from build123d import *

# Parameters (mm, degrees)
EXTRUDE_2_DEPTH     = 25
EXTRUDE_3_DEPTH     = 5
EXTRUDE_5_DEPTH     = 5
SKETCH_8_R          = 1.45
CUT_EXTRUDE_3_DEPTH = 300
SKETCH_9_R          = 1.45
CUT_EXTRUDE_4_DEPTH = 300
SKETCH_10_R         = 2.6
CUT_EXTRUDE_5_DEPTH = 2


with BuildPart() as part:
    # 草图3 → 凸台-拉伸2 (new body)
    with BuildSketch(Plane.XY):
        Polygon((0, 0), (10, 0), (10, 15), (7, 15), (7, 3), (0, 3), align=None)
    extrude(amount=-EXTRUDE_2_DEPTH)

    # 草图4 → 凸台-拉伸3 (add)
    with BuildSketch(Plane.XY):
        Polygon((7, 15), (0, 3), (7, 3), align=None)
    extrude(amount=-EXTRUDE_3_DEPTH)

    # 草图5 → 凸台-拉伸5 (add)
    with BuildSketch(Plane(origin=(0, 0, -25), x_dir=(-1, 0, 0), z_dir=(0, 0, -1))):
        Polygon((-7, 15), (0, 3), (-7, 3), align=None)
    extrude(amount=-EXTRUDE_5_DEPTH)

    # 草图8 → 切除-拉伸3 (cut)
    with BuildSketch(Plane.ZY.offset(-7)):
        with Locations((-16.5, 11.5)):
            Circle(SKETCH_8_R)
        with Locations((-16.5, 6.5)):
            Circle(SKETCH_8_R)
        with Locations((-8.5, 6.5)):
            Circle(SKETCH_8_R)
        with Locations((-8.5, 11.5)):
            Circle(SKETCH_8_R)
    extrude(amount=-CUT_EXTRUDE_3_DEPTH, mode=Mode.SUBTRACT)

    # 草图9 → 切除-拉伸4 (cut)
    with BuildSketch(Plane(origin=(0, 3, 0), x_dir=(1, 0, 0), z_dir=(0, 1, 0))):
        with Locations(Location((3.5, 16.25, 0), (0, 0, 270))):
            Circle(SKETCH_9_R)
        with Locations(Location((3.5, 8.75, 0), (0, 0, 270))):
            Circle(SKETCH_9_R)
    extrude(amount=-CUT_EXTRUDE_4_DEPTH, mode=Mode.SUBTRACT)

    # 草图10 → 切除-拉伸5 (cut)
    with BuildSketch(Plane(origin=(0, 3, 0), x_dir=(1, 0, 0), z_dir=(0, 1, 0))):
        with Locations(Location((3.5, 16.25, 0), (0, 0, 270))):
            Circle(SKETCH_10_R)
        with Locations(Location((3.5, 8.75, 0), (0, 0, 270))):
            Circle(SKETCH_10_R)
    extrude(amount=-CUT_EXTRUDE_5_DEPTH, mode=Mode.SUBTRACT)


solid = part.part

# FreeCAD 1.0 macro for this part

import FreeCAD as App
import Part
import Sketcher
from FreeCAD import Vector


def add_polygon(sketch, points):
    """Adds a closed chain of lines whose ends are joined by coincident constraints."""
    first, n = sketch.GeometryCount, len(points)
    for a, b in zip(points, points[1:] + points[:1]):
        sketch.addGeometry(Part.LineSegment(App.Vector(*a, 0), App.Vector(*b, 0)), False)
    for i in range(n):
        sketch.addConstraint(Sketcher.Constraint("Coincident", first + i, 2, first + (i + 1) % n, 1))

doc = App.newDocument("Part")
body = doc.addObject("PartDesign::Body", "Body")

# Sketch on XY plane
sketch1 = body.newObject("Sketcher::SketchObject", "Sketch")
sketch1.AttachmentSupport = (doc.getObject("XY_Plane"), [""])
sketch1.MapMode = "FlatFace"
add_polygon(sketch1, [(0, 0), (10, 0), (10, 15), (7, 15), (7, 3), (0, 3)])  # lines 0-5
sketch1.addConstraint([
    Sketcher.Constraint("Horizontal", 0),
    Sketcher.Constraint("Vertical", 1),
    Sketcher.Constraint("Horizontal", 2),
    Sketcher.Constraint("Vertical", 3),
    Sketcher.Constraint("Horizontal", 4),
    Sketcher.Constraint("Vertical", 5),
    Sketcher.Constraint("Coincident", 5, 2, -1, 1),
    Sketcher.Constraint("Equal", 2, 5),
    Sketcher.Constraint("DistanceX", 0, 1, 0, 2, 10.0),
    Sketcher.Constraint("DistanceX", 2, 2, 2, 1, 3.0),
    Sketcher.Constraint("DistanceY", 1, 1, 1, 2, 15.0),
])
pad1 = body.newObject("PartDesign::Pad", "Pad")
pad1.Profile = sketch1
pad1.Length = 25
pad1.Reversed = True

# Sketch on XY plane
sketch2 = body.newObject("Sketcher::SketchObject", "Sketch001")
sketch2.AttachmentSupport = (doc.getObject("XY_Plane"), [""])
sketch2.MapMode = "FlatFace"
add_polygon(sketch2, [(7, 15), (0, 3), (7, 3)])  # lines 0-2
sketch2.addConstraint([
    Sketcher.Constraint("Horizontal", 1),
    Sketcher.Constraint("Vertical", 2),
    Sketcher.Constraint("PointOnObject", 0, 2, -2),
    Sketcher.Constraint("DistanceX", 1, 1, 1, 2, 7.0),
    Sketcher.Constraint("DistanceY", 2, 1, 2, 2, 12.0),
    Sketcher.Constraint("DistanceY", -1, 1, 0, 2, 3.0),
])
pad2 = body.newObject("PartDesign::Pad", "Pad001")
pad2.Profile = sketch2
pad2.Length = 5
pad2.Reversed = True

# Sketch on XY plane
sketch3 = body.newObject("Sketcher::SketchObject", "Sketch002")
sketch3.AttachmentSupport = (doc.getObject("XY_Plane"), [""])
sketch3.MapMode = "FlatFace"
sketch3.AttachmentOffset = App.Placement(Vector(0, 0, -25), App.Rotation())
add_polygon(sketch3, [(0, 3), (7, 15), (7, 3)])  # lines 0-2
sketch3.addConstraint([
    Sketcher.Constraint("Vertical", 1),
    Sketcher.Constraint("Horizontal", 2),
    Sketcher.Constraint("PointOnObject", 2, 2, -2),
    Sketcher.Constraint("DistanceX", 2, 2, 2, 1, 7.0),
    Sketcher.Constraint("DistanceY", 1, 2, 1, 1, 12.0),
    Sketcher.Constraint("DistanceY", -1, 1, 0, 2, 15.0),
])
pad3 = body.newObject("PartDesign::Pad", "Pad002")
pad3.Profile = sketch3
pad3.Length = 5

# Sketch on YZ plane
sketch4 = body.newObject("Sketcher::SketchObject", "Sketch003")
sketch4.AttachmentSupport = (doc.getObject("YZ_Plane"), [""])
sketch4.MapMode = "FlatFace"
sketch4.AttachmentOffset = App.Placement(Vector(0, 0, 7), App.Rotation())
sketch4.addGeometry([
    Part.Circle(Vector(11.5, -16.5, 0), Vector(0, 0, 1), 1.4),
    Part.Circle(Vector(6.5, -16.5, 0), Vector(0, 0, 1), 1.4),
    Part.Circle(Vector(6.5, -8.5, 0), Vector(0, 0, 1), 1.4),
    Part.Circle(Vector(11.5, -8.5, 0), Vector(0, 0, 1), 1.4),
], False)
sketch4.addConstraint([
    Sketcher.Constraint("Equal", 0, 1),
    Sketcher.Constraint("Equal", 1, 2),
    Sketcher.Constraint("Equal", 2, 3),
    Sketcher.Constraint("Horizontal", 0, 3, 1, 3),
    Sketcher.Constraint("Horizontal", 2, 3, 3, 3),
    Sketcher.Constraint("Vertical", 1, 3, 2, 3),
    Sketcher.Constraint("Vertical", 0, 3, 3, 3),
    Sketcher.Constraint("Diameter", 0, 2.9),
    Sketcher.Constraint("DistanceX", 1, 3, 0, 3, 5.0),
    Sketcher.Constraint("DistanceY", 1, 3, 2, 3, 8.0),
    Sketcher.Constraint("DistanceX", -1, 1, 0, 3, 11.5),
    Sketcher.Constraint("DistanceY", 0, 3, -1, 1, 16.5),
])
pocket1 = body.newObject("PartDesign::Pocket", "Pocket")
pocket1.Profile = sketch4
pocket1.Length = 300
pocket1.Reversed = True

# Sketch on XZ plane
sketch5 = body.newObject("Sketcher::SketchObject", "Sketch004")
sketch5.AttachmentSupport = (doc.getObject("XZ_Plane"), [""])
sketch5.MapMode = "FlatFace"
sketch5.AttachmentOffset = App.Placement(Vector(0, 0, -3), App.Rotation())
sketch5.addGeometry([
    Part.Circle(Vector(3.5, -16.2, 0), Vector(0, 0, 1), 1.4),
    Part.Circle(Vector(3.5, -8.8, 0), Vector(0, 0, 1), 1.4),
], False)
sketch5.addConstraint([
    Sketcher.Constraint("Equal", 0, 1),
    Sketcher.Constraint("Vertical", 0, 3, 1, 3),
    Sketcher.Constraint("Diameter", 0, 2.9),
    Sketcher.Constraint("DistanceX", -1, 1, 0, 3, 3.5),
    Sketcher.Constraint("DistanceY", 0, 3, 1, 3, 7.5),
    Sketcher.Constraint("DistanceY", 0, 3, -1, 1, 16.25),
])
pocket2 = body.newObject("PartDesign::Pocket", "Pocket001")
pocket2.Profile = sketch5
pocket2.Length = 300
pocket2.Reversed = True

# Sketch on XZ plane
sketch6 = body.newObject("Sketcher::SketchObject", "Sketch005")
sketch6.AttachmentSupport = (doc.getObject("XZ_Plane"), [""])
sketch6.MapMode = "FlatFace"
sketch6.AttachmentOffset = App.Placement(Vector(0, 0, -3), App.Rotation())
sketch6.addGeometry([
    Part.Circle(Vector(3.5, -16.2, 0), Vector(0, 0, 1), 2.6),
    Part.Circle(Vector(3.5, -8.8, 0), Vector(0, 0, 1), 2.6),
], False)
sketch6.addConstraint([
    Sketcher.Constraint("Equal", 0, 1),
    Sketcher.Constraint("Vertical", 0, 3, 1, 3),
    Sketcher.Constraint("Diameter", 0, 5.2),
    Sketcher.Constraint("DistanceX", -1, 1, 0, 3, 3.5),
    Sketcher.Constraint("DistanceY", 0, 3, 1, 3, 7.5),
    Sketcher.Constraint("DistanceY", 0, 3, -1, 1, 16.25),
])
pocket3 = body.newObject("PartDesign::Pocket", "Pocket002")
pocket3.Profile = sketch6
pocket3.Length = 2
pocket3.Reversed = True

doc.recompute()
